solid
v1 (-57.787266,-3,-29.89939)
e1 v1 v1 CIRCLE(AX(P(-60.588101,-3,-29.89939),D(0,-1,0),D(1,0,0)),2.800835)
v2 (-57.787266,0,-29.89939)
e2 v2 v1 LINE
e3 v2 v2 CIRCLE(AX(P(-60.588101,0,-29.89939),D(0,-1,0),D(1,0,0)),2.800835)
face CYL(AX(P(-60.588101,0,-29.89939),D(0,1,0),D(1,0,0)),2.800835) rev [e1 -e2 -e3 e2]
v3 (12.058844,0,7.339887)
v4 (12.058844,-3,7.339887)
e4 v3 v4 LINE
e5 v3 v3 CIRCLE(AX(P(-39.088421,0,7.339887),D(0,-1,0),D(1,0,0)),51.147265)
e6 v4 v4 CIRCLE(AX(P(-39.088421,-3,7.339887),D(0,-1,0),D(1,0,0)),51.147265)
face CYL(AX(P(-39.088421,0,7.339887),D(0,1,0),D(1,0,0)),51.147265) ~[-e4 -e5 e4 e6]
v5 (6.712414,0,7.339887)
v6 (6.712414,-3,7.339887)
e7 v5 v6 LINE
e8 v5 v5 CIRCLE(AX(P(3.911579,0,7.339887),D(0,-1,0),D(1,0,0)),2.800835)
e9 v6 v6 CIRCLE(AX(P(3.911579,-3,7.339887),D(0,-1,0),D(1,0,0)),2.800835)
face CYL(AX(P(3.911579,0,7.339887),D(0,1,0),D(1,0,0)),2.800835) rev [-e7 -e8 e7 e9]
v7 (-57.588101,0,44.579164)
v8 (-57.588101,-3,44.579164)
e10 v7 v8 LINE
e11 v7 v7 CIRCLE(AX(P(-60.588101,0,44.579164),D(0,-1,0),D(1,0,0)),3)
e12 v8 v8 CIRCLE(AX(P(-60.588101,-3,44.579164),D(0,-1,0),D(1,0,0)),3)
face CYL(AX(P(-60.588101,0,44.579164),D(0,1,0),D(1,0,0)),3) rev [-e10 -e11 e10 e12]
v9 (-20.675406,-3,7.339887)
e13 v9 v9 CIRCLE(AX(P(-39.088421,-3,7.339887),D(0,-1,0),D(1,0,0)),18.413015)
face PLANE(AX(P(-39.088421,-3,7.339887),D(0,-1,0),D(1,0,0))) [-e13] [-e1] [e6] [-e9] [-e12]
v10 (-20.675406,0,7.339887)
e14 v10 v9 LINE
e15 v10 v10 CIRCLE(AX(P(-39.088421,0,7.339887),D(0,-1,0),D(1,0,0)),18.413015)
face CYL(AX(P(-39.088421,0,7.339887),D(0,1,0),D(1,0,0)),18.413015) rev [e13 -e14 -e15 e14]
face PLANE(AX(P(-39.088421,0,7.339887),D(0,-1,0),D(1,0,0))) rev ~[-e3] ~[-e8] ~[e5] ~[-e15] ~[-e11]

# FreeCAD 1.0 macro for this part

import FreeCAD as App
import Part
import Sketcher
from FreeCAD import Vector
Q = App.Units.Quantity

doc = App.newDocument("Part")
body = doc.addObject("PartDesign::Body", "Body")

sketch1 = body.newObject("Sketcher::SketchObject", "Sketch")
sketch1.AttachmentSupport = (doc.getObject("XZ_Plane"), [""])
sketch1.MapMode = "FlatFace"
sketch1.addGeometry([
    Part.Circle(Vector(-39.1, 7.3, 0), Vector(0, 0, 1), 51.1),
    Part.Circle(Vector(-60.6, -29.9, 0), Vector(0, 0, 1), 2.8),
    Part.Circle(Vector(-39.1, 7.3, 0), Vector(0, 0, 1), 18.4),
    Part.Circle(Vector(3.9, 7.3, 0), Vector(0, 0, 1), 2.8),
    Part.Circle(Vector(-60.6, 44.6, 0), Vector(0, 0, 1), 3),
], False)
sketch1.addConstraint([
    Sketcher.Constraint("Coincident", 2, 3, 0, 3),
    Sketcher.Constraint("Equal", 1, 3),
    Sketcher.Constraint("Horizontal", 2, 3, 3, 3),
    Sketcher.Constraint("Vertical", 1, 3, 4, 3),
    Sketcher.Constraint("Diameter", 4, Q("6 mm")),
    Sketcher.Constraint("DistanceX", 0, 3, 3, 3, Q("43 mm")),
    Sketcher.Constraint("Diameter", 0, Q("102.29453 mm")),
    Sketcher.Constraint("Diameter", 1, Q("5.60167 mm")),
    Sketcher.Constraint("Diameter", 2, Q("36.82603 mm")),
    Sketcher.Constraint("DistanceX", 1, 3, -1, 1, Q("60.588101 mm")),
    Sketcher.Constraint("DistanceX", 0, 3, -1, 1, Q("39.088421 mm")),
    Sketcher.Constraint("DistanceY", 1, 3, -1, 1, Q("29.89939 mm")),
    Sketcher.Constraint("DistanceY", -1, 1, 0, 3, Q("7.339887 mm")),
    Sketcher.Constraint("DistanceY", -1, 1, 4, 3, Q("44.579164 mm")),
])
pad1 = body.newObject("PartDesign::Pad", "Pad")
pad1.Profile = sketch1
pad1.Length = 3

doc.recompute()
